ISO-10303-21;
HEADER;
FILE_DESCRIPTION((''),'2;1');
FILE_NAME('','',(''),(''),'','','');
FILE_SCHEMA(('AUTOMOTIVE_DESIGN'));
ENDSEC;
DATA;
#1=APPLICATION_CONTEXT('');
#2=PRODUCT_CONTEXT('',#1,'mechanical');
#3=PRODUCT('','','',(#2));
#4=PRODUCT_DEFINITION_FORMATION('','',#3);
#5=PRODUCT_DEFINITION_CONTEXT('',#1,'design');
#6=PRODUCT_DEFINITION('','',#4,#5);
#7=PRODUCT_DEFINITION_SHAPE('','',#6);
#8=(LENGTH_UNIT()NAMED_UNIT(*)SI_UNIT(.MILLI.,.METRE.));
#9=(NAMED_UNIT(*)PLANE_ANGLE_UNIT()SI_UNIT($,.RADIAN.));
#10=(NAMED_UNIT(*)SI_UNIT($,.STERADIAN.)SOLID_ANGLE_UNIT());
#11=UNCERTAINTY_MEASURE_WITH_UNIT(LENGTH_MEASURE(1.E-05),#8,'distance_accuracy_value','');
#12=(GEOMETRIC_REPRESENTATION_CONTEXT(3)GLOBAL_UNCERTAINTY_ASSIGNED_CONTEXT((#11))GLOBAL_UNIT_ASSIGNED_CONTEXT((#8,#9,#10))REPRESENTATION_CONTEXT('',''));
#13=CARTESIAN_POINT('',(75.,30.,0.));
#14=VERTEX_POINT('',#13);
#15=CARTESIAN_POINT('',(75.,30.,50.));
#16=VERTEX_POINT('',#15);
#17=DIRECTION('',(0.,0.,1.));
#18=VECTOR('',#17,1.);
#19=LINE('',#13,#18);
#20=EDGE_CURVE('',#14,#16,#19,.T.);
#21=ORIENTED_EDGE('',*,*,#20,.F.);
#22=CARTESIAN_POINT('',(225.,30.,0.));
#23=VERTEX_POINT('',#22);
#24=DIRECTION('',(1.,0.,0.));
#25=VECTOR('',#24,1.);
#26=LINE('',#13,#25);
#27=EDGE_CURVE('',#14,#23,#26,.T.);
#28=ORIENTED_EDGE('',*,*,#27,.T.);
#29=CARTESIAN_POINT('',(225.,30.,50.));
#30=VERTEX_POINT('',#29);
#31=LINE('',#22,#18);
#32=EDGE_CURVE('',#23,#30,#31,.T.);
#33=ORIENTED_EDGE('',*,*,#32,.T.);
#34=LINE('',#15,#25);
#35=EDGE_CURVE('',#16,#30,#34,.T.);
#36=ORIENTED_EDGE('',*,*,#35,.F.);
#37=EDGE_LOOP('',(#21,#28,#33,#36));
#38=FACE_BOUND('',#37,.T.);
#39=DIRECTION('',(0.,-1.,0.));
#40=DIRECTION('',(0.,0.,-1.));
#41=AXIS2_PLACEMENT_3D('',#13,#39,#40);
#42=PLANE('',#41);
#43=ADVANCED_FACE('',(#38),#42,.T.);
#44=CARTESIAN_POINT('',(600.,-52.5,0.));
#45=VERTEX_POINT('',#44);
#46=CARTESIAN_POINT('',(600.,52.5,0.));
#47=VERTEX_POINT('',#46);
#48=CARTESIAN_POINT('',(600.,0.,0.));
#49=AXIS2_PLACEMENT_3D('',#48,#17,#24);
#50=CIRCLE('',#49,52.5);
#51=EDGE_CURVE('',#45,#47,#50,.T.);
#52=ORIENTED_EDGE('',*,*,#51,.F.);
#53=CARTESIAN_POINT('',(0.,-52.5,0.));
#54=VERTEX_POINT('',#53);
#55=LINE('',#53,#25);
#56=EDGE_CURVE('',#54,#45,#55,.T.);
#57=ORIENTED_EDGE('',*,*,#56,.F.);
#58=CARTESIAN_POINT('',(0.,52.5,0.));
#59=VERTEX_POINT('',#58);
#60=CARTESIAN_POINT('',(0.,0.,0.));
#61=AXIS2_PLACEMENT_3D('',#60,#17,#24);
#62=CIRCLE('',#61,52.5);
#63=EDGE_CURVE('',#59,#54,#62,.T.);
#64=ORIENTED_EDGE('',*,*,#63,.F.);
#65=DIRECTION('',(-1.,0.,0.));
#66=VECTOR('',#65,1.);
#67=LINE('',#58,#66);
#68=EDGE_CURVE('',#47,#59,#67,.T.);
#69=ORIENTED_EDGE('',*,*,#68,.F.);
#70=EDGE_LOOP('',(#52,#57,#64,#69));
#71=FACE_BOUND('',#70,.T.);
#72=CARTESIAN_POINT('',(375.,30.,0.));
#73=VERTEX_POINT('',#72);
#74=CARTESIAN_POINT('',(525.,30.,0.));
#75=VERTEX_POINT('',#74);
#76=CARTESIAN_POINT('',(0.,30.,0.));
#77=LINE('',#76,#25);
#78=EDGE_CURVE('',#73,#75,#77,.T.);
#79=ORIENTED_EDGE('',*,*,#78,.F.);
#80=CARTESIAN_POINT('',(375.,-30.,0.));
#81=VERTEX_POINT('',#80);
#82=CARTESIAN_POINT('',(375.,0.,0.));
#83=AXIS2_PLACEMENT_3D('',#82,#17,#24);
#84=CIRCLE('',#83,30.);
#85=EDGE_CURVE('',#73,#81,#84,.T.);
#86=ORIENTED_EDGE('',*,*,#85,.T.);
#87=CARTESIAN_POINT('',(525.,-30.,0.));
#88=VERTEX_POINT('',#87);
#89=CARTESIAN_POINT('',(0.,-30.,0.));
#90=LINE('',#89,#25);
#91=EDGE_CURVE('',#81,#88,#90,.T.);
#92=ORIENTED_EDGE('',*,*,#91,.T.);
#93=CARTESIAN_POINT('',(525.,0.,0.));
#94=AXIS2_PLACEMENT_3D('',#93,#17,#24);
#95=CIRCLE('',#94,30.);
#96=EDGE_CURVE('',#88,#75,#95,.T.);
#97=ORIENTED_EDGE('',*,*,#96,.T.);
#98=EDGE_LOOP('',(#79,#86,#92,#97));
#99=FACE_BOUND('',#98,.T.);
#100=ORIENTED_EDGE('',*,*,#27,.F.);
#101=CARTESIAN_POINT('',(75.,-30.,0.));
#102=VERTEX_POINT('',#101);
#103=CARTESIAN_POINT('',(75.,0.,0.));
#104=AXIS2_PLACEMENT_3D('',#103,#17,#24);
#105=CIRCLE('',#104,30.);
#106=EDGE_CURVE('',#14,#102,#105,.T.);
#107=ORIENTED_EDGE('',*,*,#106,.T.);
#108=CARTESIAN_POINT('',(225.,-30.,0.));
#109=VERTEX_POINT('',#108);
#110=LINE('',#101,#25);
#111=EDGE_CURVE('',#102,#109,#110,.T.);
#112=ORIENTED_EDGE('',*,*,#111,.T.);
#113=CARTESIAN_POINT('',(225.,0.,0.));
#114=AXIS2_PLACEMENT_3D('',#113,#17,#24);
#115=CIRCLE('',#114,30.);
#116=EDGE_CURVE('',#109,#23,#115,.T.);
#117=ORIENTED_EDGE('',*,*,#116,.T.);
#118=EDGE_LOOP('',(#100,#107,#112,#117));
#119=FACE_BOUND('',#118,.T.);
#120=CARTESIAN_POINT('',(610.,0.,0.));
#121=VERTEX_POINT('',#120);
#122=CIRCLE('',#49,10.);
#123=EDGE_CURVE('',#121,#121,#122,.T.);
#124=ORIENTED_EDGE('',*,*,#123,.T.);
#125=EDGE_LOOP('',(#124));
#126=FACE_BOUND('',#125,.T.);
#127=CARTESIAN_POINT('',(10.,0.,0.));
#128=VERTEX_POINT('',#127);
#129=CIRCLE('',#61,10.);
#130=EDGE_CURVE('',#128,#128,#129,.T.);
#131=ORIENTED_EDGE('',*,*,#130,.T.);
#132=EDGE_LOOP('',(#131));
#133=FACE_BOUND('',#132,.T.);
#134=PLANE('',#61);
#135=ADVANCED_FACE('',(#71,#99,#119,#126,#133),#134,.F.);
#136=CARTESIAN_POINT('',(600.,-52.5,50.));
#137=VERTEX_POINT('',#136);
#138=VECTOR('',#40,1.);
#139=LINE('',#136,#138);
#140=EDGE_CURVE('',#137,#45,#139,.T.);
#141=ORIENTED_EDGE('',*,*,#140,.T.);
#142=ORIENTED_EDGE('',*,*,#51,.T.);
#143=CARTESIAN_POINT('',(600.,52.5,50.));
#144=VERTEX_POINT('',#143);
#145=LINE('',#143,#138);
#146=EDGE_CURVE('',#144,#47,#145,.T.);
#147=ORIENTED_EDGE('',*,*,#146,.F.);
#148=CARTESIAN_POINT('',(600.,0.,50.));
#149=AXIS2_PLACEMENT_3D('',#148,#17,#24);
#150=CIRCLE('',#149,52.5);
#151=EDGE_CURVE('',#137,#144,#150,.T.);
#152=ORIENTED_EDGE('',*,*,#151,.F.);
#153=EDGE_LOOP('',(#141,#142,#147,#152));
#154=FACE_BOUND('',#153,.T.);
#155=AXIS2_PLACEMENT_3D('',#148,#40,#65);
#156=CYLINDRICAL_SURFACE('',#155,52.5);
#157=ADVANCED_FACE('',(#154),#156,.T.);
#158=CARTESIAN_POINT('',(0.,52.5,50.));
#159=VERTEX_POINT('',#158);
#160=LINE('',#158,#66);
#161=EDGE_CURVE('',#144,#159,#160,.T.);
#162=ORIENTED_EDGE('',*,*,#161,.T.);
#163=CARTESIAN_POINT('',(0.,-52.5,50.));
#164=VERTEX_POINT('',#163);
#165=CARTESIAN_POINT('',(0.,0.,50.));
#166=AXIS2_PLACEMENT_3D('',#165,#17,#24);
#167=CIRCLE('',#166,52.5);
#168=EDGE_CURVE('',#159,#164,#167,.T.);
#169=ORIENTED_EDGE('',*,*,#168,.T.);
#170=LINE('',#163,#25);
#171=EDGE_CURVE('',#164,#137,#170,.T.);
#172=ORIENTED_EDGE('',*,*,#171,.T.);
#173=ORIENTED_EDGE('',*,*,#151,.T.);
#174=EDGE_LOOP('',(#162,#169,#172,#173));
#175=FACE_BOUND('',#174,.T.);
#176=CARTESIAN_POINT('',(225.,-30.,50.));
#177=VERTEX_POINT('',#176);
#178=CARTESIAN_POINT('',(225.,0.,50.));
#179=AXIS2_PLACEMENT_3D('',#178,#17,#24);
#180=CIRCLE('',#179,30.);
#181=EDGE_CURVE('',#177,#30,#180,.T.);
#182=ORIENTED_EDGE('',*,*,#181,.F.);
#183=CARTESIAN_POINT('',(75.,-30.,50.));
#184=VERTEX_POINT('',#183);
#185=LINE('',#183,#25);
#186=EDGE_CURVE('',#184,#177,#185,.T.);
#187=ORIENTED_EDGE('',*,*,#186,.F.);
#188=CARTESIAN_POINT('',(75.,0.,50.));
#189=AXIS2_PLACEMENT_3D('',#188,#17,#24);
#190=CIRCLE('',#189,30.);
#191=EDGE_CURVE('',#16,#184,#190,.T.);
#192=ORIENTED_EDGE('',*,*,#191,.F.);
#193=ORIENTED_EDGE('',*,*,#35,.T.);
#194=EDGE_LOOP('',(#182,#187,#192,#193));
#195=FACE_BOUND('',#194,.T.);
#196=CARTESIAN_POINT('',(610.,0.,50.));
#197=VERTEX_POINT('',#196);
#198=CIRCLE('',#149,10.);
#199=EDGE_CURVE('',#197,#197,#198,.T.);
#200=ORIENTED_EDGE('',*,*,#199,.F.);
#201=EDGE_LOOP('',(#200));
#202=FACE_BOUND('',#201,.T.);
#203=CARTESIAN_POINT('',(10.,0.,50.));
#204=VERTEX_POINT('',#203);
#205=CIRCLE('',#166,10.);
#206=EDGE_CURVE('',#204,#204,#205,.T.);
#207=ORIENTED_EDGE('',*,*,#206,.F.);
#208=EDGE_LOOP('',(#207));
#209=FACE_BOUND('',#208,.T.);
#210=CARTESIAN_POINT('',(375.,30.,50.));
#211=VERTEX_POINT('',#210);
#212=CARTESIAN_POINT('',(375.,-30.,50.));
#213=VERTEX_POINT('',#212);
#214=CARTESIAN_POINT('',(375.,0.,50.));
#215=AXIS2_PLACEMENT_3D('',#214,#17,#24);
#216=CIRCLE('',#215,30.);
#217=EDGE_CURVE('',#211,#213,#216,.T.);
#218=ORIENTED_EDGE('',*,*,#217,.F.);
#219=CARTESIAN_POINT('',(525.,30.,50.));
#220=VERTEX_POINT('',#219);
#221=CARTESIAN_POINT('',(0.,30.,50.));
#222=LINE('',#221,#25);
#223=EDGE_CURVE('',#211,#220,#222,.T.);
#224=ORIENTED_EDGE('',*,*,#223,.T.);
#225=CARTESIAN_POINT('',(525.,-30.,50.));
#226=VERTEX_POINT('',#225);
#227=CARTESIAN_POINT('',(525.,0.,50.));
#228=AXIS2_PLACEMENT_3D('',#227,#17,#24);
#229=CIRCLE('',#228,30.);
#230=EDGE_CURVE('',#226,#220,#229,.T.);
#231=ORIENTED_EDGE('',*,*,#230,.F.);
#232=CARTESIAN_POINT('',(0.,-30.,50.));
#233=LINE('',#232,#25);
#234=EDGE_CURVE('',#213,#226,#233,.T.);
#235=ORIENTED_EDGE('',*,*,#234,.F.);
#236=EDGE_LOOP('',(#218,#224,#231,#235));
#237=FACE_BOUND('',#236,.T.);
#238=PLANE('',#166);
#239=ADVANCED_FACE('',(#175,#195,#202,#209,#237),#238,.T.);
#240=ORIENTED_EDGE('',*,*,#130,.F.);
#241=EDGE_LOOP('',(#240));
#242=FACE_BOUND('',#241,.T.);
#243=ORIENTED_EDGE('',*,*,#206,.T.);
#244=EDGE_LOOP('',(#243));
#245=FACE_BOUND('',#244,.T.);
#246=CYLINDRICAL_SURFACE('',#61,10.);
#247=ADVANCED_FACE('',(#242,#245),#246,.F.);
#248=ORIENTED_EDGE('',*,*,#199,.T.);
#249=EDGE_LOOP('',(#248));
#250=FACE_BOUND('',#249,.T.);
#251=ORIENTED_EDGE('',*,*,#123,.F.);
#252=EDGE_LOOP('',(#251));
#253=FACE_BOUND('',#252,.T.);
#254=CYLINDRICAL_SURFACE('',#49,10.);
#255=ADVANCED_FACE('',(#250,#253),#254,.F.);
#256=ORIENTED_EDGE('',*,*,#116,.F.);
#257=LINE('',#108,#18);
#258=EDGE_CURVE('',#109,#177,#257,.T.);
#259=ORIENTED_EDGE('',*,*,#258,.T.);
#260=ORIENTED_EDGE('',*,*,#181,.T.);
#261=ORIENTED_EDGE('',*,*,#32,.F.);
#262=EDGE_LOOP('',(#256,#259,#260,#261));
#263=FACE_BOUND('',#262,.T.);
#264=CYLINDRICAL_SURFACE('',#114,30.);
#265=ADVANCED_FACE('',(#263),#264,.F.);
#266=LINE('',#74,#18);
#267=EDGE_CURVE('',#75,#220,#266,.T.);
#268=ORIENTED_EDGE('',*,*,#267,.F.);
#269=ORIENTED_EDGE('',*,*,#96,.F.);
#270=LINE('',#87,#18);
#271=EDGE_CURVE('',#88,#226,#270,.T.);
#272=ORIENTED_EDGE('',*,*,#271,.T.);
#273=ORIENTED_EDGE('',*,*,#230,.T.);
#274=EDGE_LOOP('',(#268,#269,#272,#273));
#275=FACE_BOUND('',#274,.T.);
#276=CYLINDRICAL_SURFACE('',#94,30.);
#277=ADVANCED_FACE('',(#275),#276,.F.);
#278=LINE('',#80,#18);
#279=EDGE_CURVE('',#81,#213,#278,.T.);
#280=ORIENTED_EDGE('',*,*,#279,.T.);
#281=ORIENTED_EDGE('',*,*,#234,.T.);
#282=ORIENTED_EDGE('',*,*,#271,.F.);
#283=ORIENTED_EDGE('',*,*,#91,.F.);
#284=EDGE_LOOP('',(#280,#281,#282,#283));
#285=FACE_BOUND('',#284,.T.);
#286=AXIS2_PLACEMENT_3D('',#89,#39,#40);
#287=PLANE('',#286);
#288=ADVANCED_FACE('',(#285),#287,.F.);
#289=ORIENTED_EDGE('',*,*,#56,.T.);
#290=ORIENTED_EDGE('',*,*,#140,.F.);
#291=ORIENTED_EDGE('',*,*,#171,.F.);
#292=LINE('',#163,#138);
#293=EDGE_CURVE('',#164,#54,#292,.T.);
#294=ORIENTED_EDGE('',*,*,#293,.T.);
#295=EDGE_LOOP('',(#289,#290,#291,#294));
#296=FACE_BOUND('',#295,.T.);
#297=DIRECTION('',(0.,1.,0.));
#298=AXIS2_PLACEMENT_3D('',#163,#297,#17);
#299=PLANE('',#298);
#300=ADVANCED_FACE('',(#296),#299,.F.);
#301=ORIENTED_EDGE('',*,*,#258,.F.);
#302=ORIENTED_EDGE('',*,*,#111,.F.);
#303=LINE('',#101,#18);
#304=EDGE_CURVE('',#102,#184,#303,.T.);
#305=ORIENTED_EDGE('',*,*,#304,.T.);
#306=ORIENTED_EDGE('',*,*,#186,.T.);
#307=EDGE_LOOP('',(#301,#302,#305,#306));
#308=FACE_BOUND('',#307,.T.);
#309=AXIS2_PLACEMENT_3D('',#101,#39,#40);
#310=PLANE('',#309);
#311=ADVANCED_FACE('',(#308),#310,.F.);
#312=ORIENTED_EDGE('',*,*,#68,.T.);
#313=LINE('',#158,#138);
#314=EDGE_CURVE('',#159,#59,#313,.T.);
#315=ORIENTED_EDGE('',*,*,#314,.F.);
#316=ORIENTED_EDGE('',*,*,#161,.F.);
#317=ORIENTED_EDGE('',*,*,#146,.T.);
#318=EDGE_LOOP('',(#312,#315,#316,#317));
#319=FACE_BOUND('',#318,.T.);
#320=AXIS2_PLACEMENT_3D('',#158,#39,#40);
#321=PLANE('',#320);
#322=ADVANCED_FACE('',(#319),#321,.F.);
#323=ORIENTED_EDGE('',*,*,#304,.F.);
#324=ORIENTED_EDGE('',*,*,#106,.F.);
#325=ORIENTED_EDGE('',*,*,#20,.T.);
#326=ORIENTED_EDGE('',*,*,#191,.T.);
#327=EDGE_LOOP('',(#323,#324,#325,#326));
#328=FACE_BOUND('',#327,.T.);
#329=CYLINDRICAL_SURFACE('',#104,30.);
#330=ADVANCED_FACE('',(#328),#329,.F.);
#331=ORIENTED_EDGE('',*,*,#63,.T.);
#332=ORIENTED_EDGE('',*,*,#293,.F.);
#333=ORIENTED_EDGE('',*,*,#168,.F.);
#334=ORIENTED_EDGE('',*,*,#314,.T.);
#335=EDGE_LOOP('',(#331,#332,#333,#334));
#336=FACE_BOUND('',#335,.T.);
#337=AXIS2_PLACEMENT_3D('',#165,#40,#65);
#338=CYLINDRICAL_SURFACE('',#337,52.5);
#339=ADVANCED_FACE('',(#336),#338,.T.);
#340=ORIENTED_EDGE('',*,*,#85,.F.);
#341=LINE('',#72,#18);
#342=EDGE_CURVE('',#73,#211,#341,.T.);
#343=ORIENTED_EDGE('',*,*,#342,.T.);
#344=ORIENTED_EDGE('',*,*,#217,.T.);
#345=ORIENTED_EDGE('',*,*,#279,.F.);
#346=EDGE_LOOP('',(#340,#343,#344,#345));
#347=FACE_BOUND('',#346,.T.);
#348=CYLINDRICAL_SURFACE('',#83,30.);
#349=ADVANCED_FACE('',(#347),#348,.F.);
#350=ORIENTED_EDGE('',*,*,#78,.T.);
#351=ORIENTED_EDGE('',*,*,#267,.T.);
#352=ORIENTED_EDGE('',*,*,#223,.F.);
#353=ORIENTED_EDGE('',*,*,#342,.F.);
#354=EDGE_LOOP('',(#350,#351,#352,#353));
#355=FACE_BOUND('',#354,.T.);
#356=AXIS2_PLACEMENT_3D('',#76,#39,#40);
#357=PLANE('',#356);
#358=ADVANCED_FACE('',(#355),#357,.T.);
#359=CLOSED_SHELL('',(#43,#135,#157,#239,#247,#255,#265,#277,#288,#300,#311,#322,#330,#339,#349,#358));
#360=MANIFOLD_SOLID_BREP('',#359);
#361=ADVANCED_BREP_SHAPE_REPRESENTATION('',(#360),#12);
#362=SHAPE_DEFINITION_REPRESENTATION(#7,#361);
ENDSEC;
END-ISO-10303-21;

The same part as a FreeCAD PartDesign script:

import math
import FreeCAD as App
import Part
import Sketcher

V = App.Vector

doc = App.newDocument("Part")
body = doc.addObject("PartDesign::Body", "Body")

sketch1 = doc.addObject("Sketcher::SketchObject", "Sketch")
body.addObject(sketch1)
sketch1.AttachmentSupport = (doc.XY_Plane, [""])
sketch1.MapMode = "FlatFace"
sketch1.addGeometry(Part.LineSegment(V(600, 52, 0), V(0, 52, 0)), False)
sketch1.addGeometry(Part.ArcOfCircle(Part.Circle(V(0, 0, 0), V(0, 0, 1), 52), math.radians(90), math.radians(270)), False)
sketch1.addGeometry(Part.LineSegment(V(0, -52, 0), V(600, -52, 0)), False)
sketch1.addGeometry(Part.ArcOfCircle(Part.Circle(V(600, 0, 0), V(0, 0, 1), 52), math.radians(-90), math.radians(90)), False)
sketch1.addConstraint(Sketcher.Constraint("Tangent", 0, 2, 1, 1))
sketch1.addConstraint(Sketcher.Constraint("Tangent", 1, 2, 2, 1))
sketch1.addConstraint(Sketcher.Constraint("Tangent", 2, 2, 3, 1))
sketch1.addConstraint(Sketcher.Constraint("Tangent", 3, 2, 0, 1))
sketch1.addConstraint(Sketcher.Constraint("Horizontal", 0))
sketch1.addConstraint(Sketcher.Constraint("Horizontal", 2))
sketch1.addConstraint(Sketcher.Constraint("Coincident", 1, 3, -1, 1))
sketch1.addConstraint(Sketcher.Constraint("Radius", 1, 52.5))
sketch1.addConstraint(Sketcher.Constraint("DistanceX", 0, 2, 0, 1, 600.0))
pad1 = doc.addObject("PartDesign::Pad", "Pad")
body.addObject(pad1)
pad1.Profile = sketch1
pad1.Length = 50

sketch2 = doc.addObject("Sketcher::SketchObject", "Sketch001")
body.addObject(sketch2)
sketch2.AttachmentSupport = (doc.XY_Plane, [""])
sketch2.MapMode = "FlatFace"
sketch2.AttachmentOffset = App.Placement(V(0, 0, 50), App.Rotation())
sketch2.addGeometry(Part.LineSegment(V(375, -30, 0), V(525, -30, 0)), False)
sketch2.addGeometry(Part.ArcOfCircle(Part.Circle(V(525, 0, 0), V(0, 0, 1), 30), math.radians(-90), math.radians(90)), False)
sketch2.addGeometry(Part.LineSegment(V(525, 30, 0), V(375, 30, 0)), False)
sketch2.addGeometry(Part.ArcOfCircle(Part.Circle(V(375, 0, 0), V(0, 0, 1), 30), math.radians(90), math.radians(270)), False)
sketch2.addGeometry(Part.Circle(V(600, 0, 0), V(0, 0, 1), 10), False)
sketch2.addGeometry(Part.Circle(V(0, 0, 0), V(0, 0, 1), 10), False)
sketch2.addGeometry(Part.LineSegment(V(75, -30, 0), V(225, -30, 0)), False)
sketch2.addGeometry(Part.ArcOfCircle(Part.Circle(V(225, 0, 0), V(0, 0, 1), 30), math.radians(-90), math.radians(90)), False)
sketch2.addGeometry(Part.LineSegment(V(225, 30, 0), V(75, 30, 0)), False)
sketch2.addGeometry(Part.ArcOfCircle(Part.Circle(V(75, 0, 0), V(0, 0, 1), 30), math.radians(90), math.radians(270)), False)
sketch2.addConstraint(Sketcher.Constraint("Tangent", 0, 2, 1, 1))
sketch2.addConstraint(Sketcher.Constraint("Tangent", 1, 2, 2, 1))
sketch2.addConstraint(Sketcher.Constraint("Tangent", 2, 2, 3, 1))
sketch2.addConstraint(Sketcher.Constraint("Tangent", 3, 2, 0, 1))
sketch2.addConstraint(Sketcher.Constraint("Tangent", 6, 2, 7, 1))
sketch2.addConstraint(Sketcher.Constraint("Tangent", 7, 2, 8, 1))
sketch2.addConstraint(Sketcher.Constraint("Tangent", 8, 2, 9, 1))
sketch2.addConstraint(Sketcher.Constraint("Tangent", 9, 2, 6, 1))
sketch2.addConstraint(Sketcher.Constraint("Horizontal", 0))
sketch2.addConstraint(Sketcher.Constraint("Horizontal", 2))
sketch2.addConstraint(Sketcher.Constraint("Horizontal", 6))
sketch2.addConstraint(Sketcher.Constraint("Horizontal", 8))
sketch2.addConstraint(Sketcher.Constraint("Coincident", 5, 3, -1, 1))
sketch2.addConstraint(Sketcher.Constraint("Equal", 4, 5))
sketch2.addConstraint(Sketcher.Constraint("Equal", 3, 7))
sketch2.addConstraint(Sketcher.Constraint("PointOnObject", 1, 3, -1))
sketch2.addConstraint(Sketcher.Constraint("PointOnObject", 4, 3, -1))
sketch2.addConstraint(Sketcher.Constraint("PointOnObject", 7, 3, -1))
sketch2.addConstraint(Sketcher.Constraint("Equal", 2, 6))
sketch2.addConstraint(Sketcher.Constraint("Diameter", 4, 20.0))
sketch2.addConstraint(Sketcher.Constraint("Radius", 1, 30.0))
sketch2.addConstraint(Sketcher.Constraint("DistanceX", 0, 1, 0, 2, 150.0))
sketch2.addConstraint(Sketcher.Constraint("DistanceX", -1, 1, 1, 3, 525.0))
sketch2.addConstraint(Sketcher.Constraint("DistanceX", -1, 1, 4, 3, 600.0))
sketch2.addConstraint(Sketcher.Constraint("DistanceX", -1, 1, 7, 3, 225.0))
pocket1 = doc.addObject("PartDesign::Pocket", "Pocket")
body.addObject(pocket1)
pocket1.Profile = sketch2
pocket1.Type = "ThroughAll"

doc.recompute()
